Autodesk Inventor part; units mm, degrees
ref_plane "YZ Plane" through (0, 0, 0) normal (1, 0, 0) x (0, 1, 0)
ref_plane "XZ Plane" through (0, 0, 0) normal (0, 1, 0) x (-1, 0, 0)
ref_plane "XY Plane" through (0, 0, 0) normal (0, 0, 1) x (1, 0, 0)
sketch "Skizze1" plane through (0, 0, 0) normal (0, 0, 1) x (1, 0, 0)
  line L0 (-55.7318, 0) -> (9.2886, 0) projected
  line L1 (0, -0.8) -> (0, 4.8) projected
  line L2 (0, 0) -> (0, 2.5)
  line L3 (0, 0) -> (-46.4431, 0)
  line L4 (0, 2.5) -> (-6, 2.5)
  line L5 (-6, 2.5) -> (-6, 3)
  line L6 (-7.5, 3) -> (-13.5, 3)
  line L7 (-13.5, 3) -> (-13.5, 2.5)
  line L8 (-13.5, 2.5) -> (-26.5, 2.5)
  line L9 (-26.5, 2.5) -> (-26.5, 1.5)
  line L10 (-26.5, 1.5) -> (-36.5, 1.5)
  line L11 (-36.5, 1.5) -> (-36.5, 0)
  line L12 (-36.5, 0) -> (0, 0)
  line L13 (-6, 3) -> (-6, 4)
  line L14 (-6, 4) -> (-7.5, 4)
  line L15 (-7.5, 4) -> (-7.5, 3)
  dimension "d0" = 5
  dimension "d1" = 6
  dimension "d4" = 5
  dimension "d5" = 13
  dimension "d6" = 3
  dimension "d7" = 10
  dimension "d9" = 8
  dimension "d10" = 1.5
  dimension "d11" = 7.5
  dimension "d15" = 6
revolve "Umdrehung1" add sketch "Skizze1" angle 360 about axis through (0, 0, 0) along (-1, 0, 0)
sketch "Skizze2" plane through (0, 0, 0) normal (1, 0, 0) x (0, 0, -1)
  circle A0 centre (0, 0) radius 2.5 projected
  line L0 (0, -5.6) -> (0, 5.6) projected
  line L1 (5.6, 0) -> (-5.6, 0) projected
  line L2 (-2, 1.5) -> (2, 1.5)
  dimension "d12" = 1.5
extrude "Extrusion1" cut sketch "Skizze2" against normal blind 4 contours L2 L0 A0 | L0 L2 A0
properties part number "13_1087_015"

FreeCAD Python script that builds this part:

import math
import FreeCAD as App
import Part
import Sketcher

V = App.Vector


def add_polygon(sketch, points):
    """Adds a closed chain of lines whose ends are joined by coincident constraints."""
    first, n = sketch.GeometryCount, len(points)
    for a, b in zip(points, points[1:] + points[:1]):
        sketch.addGeometry(Part.LineSegment(App.Vector(*a, 0), App.Vector(*b, 0)), False)
    for i in range(n):
        sketch.addConstraint(Sketcher.Constraint("Coincident", first + i, 2, first + (i + 1) % n, 1))

doc = App.newDocument("Part")
params = doc.addObject("Spreadsheet::Sheet", "Params")
for row, (alias, value) in enumerate([
    ("sketch1_width", "6 mm"),
    ("sketch1_width2", "13 mm"),
    ("sketch1_width3", "10 mm"),
    ("sketch1_width4", "1.5 mm"),
    ("sketch1_height", "1 mm"),
    ("revolution_angle", "360 deg"),
    ("sketch2_radius", "2.5 mm"),
    ("pocket1_length", "4 mm"),
], start=1):
    params.set(f"A{row}", alias)
    params.set(f"B{row}", "=" + value)
    params.setAlias(f"B{row}", alias)

body = doc.addObject("PartDesign::Body", "Body")

# Sketch on XY plane
sketch1 = doc.addObject("Sketcher::SketchObject", "Sketch")
body.addObject(sketch1)
sketch1.AttachmentSupport = (doc.XY_Plane, [""])
sketch1.MapMode = "FlatFace"
add_polygon(sketch1, [(-36.5, 1.5), (-36.5, 0), (0, 0), (0, 2.5), (-6, 2.5), (-6, 4), (-7.5, 4), (-7.5, 3), (-13.5, 3), (-13.5, 2.5), (-26.5, 2.5), (-26.5, 1.5)])  # lines 0-11
sketch1.addConstraint(Sketcher.Constraint("Vertical", 0))
sketch1.addConstraint(Sketcher.Constraint("Horizontal", 1))
sketch1.addConstraint(Sketcher.Constraint("Vertical", 2))
sketch1.addConstraint(Sketcher.Constraint("Horizontal", 3))
sketch1.addConstraint(Sketcher.Constraint("Vertical", 4))
sketch1.addConstraint(Sketcher.Constraint("Horizontal", 5))
sketch1.addConstraint(Sketcher.Constraint("Vertical", 6))
sketch1.addConstraint(Sketcher.Constraint("Horizontal", 7))
sketch1.addConstraint(Sketcher.Constraint("Vertical", 8))
sketch1.addConstraint(Sketcher.Constraint("Horizontal", 9))
sketch1.addConstraint(Sketcher.Constraint("Vertical", 10))
sketch1.addConstraint(Sketcher.Constraint("Horizontal", 11))
sketch1.addConstraint(Sketcher.Constraint("Coincident", 1, 2, -1, 1))
sketch1.addConstraint(Sketcher.Constraint("Horizontal", 3, 2, 8, 2))
sketch1.addConstraint(Sketcher.Constraint("Equal", 3, 7))
sketch1.addConstraint(Sketcher.Constraint("Equal", 5, 0))
sketch1.addConstraint(Sketcher.Constraint("Equal", 0, 4))
sketch1.addConstraint(Sketcher.Constraint("Equal", 6, 10))
sketch1.addConstraint(Sketcher.Constraint("DistanceX", 3, 2, 3, 1, 6.0))
sketch1.addConstraint(Sketcher.Constraint("DistanceX", 9, 2, 9, 1, 13.0))
sketch1.addConstraint(Sketcher.Constraint("DistanceX", 11, 2, 11, 1, 10.0))
sketch1.addConstraint(Sketcher.Constraint("DistanceX", 5, 2, 5, 1, 1.5))
sketch1.addConstraint(Sketcher.Constraint("DistanceY", 6, 2, 6, 1, 1.0))
sketch1.setExpression("Constraints[30]", "Params.sketch1_width")
sketch1.setExpression("Constraints[31]", "Params.sketch1_width2")
sketch1.setExpression("Constraints[32]", "Params.sketch1_width3")
sketch1.setExpression("Constraints[33]", "Params.sketch1_width4")
sketch1.setExpression("Constraints[34]", "Params.sketch1_height")
revolution = doc.addObject("PartDesign::Revolution", "Revolution")
body.addObject(revolution)
revolution.Profile = sketch1
revolution.ReferenceAxis = (sketch1, ["H_Axis"])
revolution.setExpression("Angle", "Params.revolution_angle")

# Sketch on YZ plane
sketch2 = doc.addObject("Sketcher::SketchObject", "Sketch001")
body.addObject(sketch2)
sketch2.AttachmentSupport = (doc.YZ_Plane, [""])
sketch2.MapMode = "FlatFace"
sketch2.addGeometry(Part.ArcOfCircle(Part.Circle(V(0, 0, 0), V(0, 0, 1), 2.5), math.radians(-53), math.radians(53)), False)
sketch2.addGeometry(Part.LineSegment(V(1.5, 2, 0), V(1.5, -2, 0)), False)
sketch2.addConstraint(Sketcher.Constraint("Coincident", 0, 1, 1, 2))
sketch2.addConstraint(Sketcher.Constraint("Coincident", 1, 1, 0, 2))
sketch2.addConstraint(Sketcher.Constraint("Vertical", 1))
sketch2.addConstraint(Sketcher.Constraint("Coincident", 0, 3, -1, 1))
sketch2.addConstraint(Sketcher.Constraint("DistanceX", -1, 1, 0, 1, 1.5))
sketch2.addConstraint(Sketcher.Constraint("Radius", 0, 2.5))
sketch2.setExpression("Constraints[5]", "Params.sketch2_radius")
pocket1 = doc.addObject("PartDesign::Pocket", "Pocket")
body.addObject(pocket1)
pocket1.Profile = sketch2
pocket1.setExpression("Length", "Params.pocket1_length")

doc.recompute()
